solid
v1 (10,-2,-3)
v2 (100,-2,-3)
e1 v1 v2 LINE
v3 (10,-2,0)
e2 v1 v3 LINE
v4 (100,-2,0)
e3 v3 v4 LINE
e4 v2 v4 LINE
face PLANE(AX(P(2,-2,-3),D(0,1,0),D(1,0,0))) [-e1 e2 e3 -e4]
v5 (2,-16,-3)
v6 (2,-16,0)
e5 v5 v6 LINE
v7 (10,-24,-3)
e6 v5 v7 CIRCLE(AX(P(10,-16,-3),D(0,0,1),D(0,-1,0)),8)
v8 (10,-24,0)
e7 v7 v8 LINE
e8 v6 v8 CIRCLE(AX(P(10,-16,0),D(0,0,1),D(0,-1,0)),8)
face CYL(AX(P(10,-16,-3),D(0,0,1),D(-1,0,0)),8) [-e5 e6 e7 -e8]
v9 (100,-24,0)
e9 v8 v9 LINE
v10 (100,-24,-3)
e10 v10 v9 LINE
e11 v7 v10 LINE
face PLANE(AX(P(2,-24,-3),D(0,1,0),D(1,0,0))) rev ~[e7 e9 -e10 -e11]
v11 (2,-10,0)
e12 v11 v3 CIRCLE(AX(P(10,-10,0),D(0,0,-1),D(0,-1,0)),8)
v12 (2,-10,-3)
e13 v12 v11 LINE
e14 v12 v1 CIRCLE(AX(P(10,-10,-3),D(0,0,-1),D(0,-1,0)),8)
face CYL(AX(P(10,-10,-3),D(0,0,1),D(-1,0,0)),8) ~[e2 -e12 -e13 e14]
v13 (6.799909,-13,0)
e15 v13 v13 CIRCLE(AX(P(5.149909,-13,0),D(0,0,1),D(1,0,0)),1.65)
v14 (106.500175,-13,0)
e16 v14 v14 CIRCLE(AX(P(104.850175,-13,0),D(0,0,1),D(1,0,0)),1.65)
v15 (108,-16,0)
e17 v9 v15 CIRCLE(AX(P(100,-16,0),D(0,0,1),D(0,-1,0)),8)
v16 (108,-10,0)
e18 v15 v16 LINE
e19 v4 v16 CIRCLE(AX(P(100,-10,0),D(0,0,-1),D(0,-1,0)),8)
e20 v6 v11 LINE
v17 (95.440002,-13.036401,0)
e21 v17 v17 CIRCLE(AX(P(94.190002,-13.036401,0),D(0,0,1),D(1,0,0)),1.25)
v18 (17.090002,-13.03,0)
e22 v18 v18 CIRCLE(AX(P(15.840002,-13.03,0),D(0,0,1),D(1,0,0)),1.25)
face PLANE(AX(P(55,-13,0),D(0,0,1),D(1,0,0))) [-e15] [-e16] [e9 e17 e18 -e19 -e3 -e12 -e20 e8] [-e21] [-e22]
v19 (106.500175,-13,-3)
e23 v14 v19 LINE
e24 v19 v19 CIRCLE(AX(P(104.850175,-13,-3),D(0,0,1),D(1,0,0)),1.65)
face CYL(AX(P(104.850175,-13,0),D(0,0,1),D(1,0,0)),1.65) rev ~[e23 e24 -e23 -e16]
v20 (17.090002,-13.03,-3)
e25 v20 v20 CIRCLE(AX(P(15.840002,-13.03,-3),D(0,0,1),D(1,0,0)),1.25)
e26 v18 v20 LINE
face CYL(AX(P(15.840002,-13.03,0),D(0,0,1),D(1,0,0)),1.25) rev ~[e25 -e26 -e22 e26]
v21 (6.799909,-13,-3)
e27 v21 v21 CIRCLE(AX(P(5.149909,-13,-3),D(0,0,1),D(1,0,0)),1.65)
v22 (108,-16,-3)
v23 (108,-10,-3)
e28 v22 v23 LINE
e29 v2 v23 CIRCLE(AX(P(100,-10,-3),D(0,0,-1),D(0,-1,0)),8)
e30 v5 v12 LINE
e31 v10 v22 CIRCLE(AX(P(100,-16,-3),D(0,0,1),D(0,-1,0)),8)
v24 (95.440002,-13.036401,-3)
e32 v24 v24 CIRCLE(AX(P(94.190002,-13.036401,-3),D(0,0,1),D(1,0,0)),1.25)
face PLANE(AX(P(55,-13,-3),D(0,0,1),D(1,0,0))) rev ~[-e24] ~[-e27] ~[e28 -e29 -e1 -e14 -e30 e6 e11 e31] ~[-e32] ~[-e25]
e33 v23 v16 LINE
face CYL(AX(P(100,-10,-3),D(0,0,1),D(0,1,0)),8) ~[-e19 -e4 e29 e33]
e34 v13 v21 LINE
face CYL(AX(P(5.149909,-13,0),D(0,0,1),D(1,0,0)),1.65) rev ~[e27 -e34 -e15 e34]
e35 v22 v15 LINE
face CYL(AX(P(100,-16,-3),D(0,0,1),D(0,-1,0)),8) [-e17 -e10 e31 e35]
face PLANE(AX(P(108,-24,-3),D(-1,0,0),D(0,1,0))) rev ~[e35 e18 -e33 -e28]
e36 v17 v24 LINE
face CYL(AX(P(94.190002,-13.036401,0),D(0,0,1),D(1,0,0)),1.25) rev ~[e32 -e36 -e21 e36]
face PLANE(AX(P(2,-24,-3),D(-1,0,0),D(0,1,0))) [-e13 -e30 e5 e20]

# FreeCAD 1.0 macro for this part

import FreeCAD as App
import Part
import Sketcher


def edges_at(feature, points):
    """Names of the edges that pass closest to the given points."""
    edges = feature.Shape.Edges
    near = lambda p: min(range(len(edges)), key=lambda i: edges[i].distToShape(Part.Vertex(*p))[0])
    return sorted({f"Edge{near(p) + 1}" for p in points})


def add_polygon(sketch, points):
    """Adds a closed chain of lines whose ends are joined by coincident constraints."""
    first, n = sketch.GeometryCount, len(points)
    for a, b in zip(points, points[1:] + points[:1]):
        sketch.addGeometry(Part.LineSegment(App.Vector(*a, 0), App.Vector(*b, 0)), False)
    for i in range(n):
        sketch.addConstraint(Sketcher.Constraint("Coincident", first + i, 2, first + (i + 1) % n, 1))

doc = App.newDocument("Part")
params = doc.addObject("Spreadsheet::Sheet", "Params")
for row, (alias, value) in enumerate([
    ("sketch1_width", "106 mm"),
    ("sketch1_height", "22 mm"),
    ("pad1_length", "3 mm"),
    ("sketch2_diameter", "2.5 mm"),
    ("pocket1_length", "3 mm"),
    ("fillet_radius", "8 mm"),
    ("sketch3_diameter", "3.3 mm"),
    ("pocket2_length", "3 mm"),
], start=1):
    params.set(f"A{row}", alias)
    params.set(f"B{row}", "=" + value)
    params.setAlias(f"B{row}", alias)

body = doc.addObject("PartDesign::Body", "Body")

# Sketch on XY plane
sketch1 = body.newObject("Sketcher::SketchObject", "Sketch")
sketch1.AttachmentSupport = (doc.getObject("XY_Plane"), [""])
sketch1.MapMode = "FlatFace"
add_polygon(sketch1, [(-52, 22), (-52, 0), (54, 0), (54, 22)])  # lines 0-3
sketch1.addConstraint([
    Sketcher.Constraint("Vertical", 0),
    Sketcher.Constraint("Horizontal", 1),
    Sketcher.Constraint("Vertical", 2),
    Sketcher.Constraint("Horizontal", 3),
    Sketcher.Constraint("DistanceX", 1, 1, 1, 2, 106.0),
    Sketcher.Constraint("DistanceY", 0, 2, 0, 1, 22.0),
    Sketcher.Constraint("DistanceX", 0, 2, -1, 1, 52.390001),
    Sketcher.Constraint("DistanceY", 0, 2, -1, 1, 0.14),
])
sketch1.setExpression("Constraints[8]", "Params.sketch1_width")
sketch1.setExpression("Constraints[9]", "Params.sketch1_height")
pad1 = body.newObject("PartDesign::Pad", "Pad")
pad1.Profile = sketch1
pad1.setExpression("Length", "Params.pad1_length")

# Sketch on XY plane
sketch2 = body.newObject("Sketcher::SketchObject", "Sketch001")
sketch2.AttachmentSupport = (doc.getObject("XY_Plane"), [""])
sketch2.MapMode = "FlatFace"
sketch2.AttachmentOffset = App.Placement(App.Vector(0, 0, 3), App.Rotation())
sketch2.addGeometry([
    Part.Circle(App.Vector(-38.5, 10.8, 0), App.Vector(0, 0, 1), 1.2),
    Part.Circle(App.Vector(39.8, 10.8, 0), App.Vector(0, 0, 1), 1.2),
], False)
sketch2.addConstraint([
    Sketcher.Constraint("Equal", 0, 1),
    Sketcher.Constraint("Diameter", 0, 2.5),
    Sketcher.Constraint("DistanceX", -1, 1, 1, 3, 39.800001),
    Sketcher.Constraint("DistanceX", 0, 3, -1, 1, 38.549999),
    Sketcher.Constraint("DistanceY", -1, 1, 0, 3, 10.83),
    Sketcher.Constraint("DistanceY", -1, 1, 1, 3, 10.823599),
])
sketch2.setExpression("Constraints[1]", "Params.sketch2_diameter")
pocket1 = body.newObject("PartDesign::Pocket", "Pocket")
pocket1.Profile = sketch2
pocket1.setExpression("Length", "Params.pocket1_length")
doc.recompute()

fillet = body.newObject("PartDesign::Fillet", "Fillet")
fillet.Base = (pocket1, edges_at(pocket1, [
    (-52.39, 21.86, 1.5),
    (-52.39, -0.14, 1.5),
    (53.61, 21.86, 1.5),
    (53.61, -0.14, 1.5),
]))
fillet.setExpression("Radius", "Params.fillet_radius")

# Sketch on XY plane
sketch3 = body.newObject("Sketcher::SketchObject", "Sketch002")
sketch3.AttachmentSupport = (doc.getObject("XY_Plane"), [""])
sketch3.MapMode = "FlatFace"
sketch3.AttachmentOffset = App.Placement(App.Vector(0, 0, 3), App.Rotation())
sketch3.addGeometry([
    Part.Circle(App.Vector(-49.2, 10.9, 0), App.Vector(0, 0, 1), 1.6),
    Part.Circle(App.Vector(50.5, 10.9, 0), App.Vector(0, 0, 1), 1.6),
], False)
sketch3.addConstraint([
    Sketcher.Constraint("Equal", 0, 1),
    Sketcher.Constraint("Horizontal", 0, 3, 1, 3),
    Sketcher.Constraint("Diameter", 0, 3.3),
    Sketcher.Constraint("DistanceY", -1, 1, 0, 3, 10.86),
    Sketcher.Constraint("DistanceX", 0, 3, -1, 1, 49.240092),
    Sketcher.Constraint("DistanceX", -1, 1, 1, 3, 50.460174),
])
sketch3.setExpression("Constraints[2]", "Params.sketch3_diameter")
pocket2 = body.newObject("PartDesign::Pocket", "Pocket001")
pocket2.Profile = sketch3
pocket2.setExpression("Length", "Params.pocket2_length")
body2 = doc.addObject("PartDesign::Body", "Body001")
doc.recompute()

body.Placement = App.Placement(App.Vector(46.37, -59.87, 16), App.Rotation(App.Vector(0, 0, 1), 0))
boolean = body2.newObject("PartDesign::Boolean", "Boolean")
boolean.Type = "Fuse"
boolean.addObjects([body])
body3 = doc.addObject("PartDesign::Body", "Body002")
doc.recompute()

body2.Placement = App.Placement(App.Vector(8.020001, 36.01, -19), App.Rotation(App.Vector(0, 0, 1), 0))
boolean2 = body3.newObject("PartDesign::Boolean", "Boolean001")
boolean2.Type = "Fuse"
boolean2.addObjects([body2])

doc.recompute()
